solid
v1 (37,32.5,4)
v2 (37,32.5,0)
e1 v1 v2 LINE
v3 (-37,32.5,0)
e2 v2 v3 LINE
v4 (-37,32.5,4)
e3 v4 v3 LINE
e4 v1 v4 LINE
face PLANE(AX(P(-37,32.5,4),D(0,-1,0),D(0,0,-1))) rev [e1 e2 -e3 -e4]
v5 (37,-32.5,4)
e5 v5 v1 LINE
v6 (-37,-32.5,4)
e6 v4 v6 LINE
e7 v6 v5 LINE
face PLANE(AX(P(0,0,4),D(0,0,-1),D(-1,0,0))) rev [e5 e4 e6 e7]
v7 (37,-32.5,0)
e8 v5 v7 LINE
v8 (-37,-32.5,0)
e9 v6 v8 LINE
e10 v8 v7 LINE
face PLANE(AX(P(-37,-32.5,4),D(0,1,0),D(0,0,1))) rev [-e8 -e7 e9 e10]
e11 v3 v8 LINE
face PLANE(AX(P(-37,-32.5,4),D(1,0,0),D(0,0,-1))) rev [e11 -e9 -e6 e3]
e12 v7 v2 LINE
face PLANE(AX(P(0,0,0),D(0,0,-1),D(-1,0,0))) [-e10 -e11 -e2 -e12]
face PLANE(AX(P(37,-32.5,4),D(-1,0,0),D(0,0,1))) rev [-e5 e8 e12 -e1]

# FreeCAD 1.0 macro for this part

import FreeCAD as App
import Part
import Sketcher


def add_polygon(sketch, points):
    """Adds a closed chain of lines whose ends are joined by coincident constraints."""
    first, n = sketch.GeometryCount, len(points)
    for a, b in zip(points, points[1:] + points[:1]):
        sketch.addGeometry(Part.LineSegment(App.Vector(*a, 0), App.Vector(*b, 0)), False)
    for i in range(n):
        sketch.addConstraint(Sketcher.Constraint("Coincident", first + i, 2, first + (i + 1) % n, 1))

doc = App.newDocument("Part")
body = doc.addObject("PartDesign::Body", "Body")

# Sketch on XY plane
sketch1 = doc.addObject("Sketcher::SketchObject", "Sketch")
body.addObject(sketch1)
sketch1.AttachmentSupport = (doc.XY_Plane, [""])
sketch1.MapMode = "FlatFace"
add_polygon(sketch1, [(-37, 32), (-37, -32), (37, -32), (37, 32)])  # lines 0-3
sketch1.addConstraint(Sketcher.Constraint("Vertical", 0))
sketch1.addConstraint(Sketcher.Constraint("Horizontal", 1))
sketch1.addConstraint(Sketcher.Constraint("Vertical", 2))
sketch1.addConstraint(Sketcher.Constraint("Horizontal", 3))
sketch1.addConstraint(Sketcher.Constraint("Symmetric", 0, 2, 2, 2, -1, 1))
sketch1.addConstraint(Sketcher.Constraint("DistanceX", 1, 1, 1, 2, 74.0))
sketch1.addConstraint(Sketcher.Constraint("DistanceY", 0, 2, 0, 1, 65.0))
pad1 = doc.addObject("PartDesign::Pad", "Pad")
body.addObject(pad1)
pad1.Profile = sketch1
pad1.Length = 4

doc.recompute()
